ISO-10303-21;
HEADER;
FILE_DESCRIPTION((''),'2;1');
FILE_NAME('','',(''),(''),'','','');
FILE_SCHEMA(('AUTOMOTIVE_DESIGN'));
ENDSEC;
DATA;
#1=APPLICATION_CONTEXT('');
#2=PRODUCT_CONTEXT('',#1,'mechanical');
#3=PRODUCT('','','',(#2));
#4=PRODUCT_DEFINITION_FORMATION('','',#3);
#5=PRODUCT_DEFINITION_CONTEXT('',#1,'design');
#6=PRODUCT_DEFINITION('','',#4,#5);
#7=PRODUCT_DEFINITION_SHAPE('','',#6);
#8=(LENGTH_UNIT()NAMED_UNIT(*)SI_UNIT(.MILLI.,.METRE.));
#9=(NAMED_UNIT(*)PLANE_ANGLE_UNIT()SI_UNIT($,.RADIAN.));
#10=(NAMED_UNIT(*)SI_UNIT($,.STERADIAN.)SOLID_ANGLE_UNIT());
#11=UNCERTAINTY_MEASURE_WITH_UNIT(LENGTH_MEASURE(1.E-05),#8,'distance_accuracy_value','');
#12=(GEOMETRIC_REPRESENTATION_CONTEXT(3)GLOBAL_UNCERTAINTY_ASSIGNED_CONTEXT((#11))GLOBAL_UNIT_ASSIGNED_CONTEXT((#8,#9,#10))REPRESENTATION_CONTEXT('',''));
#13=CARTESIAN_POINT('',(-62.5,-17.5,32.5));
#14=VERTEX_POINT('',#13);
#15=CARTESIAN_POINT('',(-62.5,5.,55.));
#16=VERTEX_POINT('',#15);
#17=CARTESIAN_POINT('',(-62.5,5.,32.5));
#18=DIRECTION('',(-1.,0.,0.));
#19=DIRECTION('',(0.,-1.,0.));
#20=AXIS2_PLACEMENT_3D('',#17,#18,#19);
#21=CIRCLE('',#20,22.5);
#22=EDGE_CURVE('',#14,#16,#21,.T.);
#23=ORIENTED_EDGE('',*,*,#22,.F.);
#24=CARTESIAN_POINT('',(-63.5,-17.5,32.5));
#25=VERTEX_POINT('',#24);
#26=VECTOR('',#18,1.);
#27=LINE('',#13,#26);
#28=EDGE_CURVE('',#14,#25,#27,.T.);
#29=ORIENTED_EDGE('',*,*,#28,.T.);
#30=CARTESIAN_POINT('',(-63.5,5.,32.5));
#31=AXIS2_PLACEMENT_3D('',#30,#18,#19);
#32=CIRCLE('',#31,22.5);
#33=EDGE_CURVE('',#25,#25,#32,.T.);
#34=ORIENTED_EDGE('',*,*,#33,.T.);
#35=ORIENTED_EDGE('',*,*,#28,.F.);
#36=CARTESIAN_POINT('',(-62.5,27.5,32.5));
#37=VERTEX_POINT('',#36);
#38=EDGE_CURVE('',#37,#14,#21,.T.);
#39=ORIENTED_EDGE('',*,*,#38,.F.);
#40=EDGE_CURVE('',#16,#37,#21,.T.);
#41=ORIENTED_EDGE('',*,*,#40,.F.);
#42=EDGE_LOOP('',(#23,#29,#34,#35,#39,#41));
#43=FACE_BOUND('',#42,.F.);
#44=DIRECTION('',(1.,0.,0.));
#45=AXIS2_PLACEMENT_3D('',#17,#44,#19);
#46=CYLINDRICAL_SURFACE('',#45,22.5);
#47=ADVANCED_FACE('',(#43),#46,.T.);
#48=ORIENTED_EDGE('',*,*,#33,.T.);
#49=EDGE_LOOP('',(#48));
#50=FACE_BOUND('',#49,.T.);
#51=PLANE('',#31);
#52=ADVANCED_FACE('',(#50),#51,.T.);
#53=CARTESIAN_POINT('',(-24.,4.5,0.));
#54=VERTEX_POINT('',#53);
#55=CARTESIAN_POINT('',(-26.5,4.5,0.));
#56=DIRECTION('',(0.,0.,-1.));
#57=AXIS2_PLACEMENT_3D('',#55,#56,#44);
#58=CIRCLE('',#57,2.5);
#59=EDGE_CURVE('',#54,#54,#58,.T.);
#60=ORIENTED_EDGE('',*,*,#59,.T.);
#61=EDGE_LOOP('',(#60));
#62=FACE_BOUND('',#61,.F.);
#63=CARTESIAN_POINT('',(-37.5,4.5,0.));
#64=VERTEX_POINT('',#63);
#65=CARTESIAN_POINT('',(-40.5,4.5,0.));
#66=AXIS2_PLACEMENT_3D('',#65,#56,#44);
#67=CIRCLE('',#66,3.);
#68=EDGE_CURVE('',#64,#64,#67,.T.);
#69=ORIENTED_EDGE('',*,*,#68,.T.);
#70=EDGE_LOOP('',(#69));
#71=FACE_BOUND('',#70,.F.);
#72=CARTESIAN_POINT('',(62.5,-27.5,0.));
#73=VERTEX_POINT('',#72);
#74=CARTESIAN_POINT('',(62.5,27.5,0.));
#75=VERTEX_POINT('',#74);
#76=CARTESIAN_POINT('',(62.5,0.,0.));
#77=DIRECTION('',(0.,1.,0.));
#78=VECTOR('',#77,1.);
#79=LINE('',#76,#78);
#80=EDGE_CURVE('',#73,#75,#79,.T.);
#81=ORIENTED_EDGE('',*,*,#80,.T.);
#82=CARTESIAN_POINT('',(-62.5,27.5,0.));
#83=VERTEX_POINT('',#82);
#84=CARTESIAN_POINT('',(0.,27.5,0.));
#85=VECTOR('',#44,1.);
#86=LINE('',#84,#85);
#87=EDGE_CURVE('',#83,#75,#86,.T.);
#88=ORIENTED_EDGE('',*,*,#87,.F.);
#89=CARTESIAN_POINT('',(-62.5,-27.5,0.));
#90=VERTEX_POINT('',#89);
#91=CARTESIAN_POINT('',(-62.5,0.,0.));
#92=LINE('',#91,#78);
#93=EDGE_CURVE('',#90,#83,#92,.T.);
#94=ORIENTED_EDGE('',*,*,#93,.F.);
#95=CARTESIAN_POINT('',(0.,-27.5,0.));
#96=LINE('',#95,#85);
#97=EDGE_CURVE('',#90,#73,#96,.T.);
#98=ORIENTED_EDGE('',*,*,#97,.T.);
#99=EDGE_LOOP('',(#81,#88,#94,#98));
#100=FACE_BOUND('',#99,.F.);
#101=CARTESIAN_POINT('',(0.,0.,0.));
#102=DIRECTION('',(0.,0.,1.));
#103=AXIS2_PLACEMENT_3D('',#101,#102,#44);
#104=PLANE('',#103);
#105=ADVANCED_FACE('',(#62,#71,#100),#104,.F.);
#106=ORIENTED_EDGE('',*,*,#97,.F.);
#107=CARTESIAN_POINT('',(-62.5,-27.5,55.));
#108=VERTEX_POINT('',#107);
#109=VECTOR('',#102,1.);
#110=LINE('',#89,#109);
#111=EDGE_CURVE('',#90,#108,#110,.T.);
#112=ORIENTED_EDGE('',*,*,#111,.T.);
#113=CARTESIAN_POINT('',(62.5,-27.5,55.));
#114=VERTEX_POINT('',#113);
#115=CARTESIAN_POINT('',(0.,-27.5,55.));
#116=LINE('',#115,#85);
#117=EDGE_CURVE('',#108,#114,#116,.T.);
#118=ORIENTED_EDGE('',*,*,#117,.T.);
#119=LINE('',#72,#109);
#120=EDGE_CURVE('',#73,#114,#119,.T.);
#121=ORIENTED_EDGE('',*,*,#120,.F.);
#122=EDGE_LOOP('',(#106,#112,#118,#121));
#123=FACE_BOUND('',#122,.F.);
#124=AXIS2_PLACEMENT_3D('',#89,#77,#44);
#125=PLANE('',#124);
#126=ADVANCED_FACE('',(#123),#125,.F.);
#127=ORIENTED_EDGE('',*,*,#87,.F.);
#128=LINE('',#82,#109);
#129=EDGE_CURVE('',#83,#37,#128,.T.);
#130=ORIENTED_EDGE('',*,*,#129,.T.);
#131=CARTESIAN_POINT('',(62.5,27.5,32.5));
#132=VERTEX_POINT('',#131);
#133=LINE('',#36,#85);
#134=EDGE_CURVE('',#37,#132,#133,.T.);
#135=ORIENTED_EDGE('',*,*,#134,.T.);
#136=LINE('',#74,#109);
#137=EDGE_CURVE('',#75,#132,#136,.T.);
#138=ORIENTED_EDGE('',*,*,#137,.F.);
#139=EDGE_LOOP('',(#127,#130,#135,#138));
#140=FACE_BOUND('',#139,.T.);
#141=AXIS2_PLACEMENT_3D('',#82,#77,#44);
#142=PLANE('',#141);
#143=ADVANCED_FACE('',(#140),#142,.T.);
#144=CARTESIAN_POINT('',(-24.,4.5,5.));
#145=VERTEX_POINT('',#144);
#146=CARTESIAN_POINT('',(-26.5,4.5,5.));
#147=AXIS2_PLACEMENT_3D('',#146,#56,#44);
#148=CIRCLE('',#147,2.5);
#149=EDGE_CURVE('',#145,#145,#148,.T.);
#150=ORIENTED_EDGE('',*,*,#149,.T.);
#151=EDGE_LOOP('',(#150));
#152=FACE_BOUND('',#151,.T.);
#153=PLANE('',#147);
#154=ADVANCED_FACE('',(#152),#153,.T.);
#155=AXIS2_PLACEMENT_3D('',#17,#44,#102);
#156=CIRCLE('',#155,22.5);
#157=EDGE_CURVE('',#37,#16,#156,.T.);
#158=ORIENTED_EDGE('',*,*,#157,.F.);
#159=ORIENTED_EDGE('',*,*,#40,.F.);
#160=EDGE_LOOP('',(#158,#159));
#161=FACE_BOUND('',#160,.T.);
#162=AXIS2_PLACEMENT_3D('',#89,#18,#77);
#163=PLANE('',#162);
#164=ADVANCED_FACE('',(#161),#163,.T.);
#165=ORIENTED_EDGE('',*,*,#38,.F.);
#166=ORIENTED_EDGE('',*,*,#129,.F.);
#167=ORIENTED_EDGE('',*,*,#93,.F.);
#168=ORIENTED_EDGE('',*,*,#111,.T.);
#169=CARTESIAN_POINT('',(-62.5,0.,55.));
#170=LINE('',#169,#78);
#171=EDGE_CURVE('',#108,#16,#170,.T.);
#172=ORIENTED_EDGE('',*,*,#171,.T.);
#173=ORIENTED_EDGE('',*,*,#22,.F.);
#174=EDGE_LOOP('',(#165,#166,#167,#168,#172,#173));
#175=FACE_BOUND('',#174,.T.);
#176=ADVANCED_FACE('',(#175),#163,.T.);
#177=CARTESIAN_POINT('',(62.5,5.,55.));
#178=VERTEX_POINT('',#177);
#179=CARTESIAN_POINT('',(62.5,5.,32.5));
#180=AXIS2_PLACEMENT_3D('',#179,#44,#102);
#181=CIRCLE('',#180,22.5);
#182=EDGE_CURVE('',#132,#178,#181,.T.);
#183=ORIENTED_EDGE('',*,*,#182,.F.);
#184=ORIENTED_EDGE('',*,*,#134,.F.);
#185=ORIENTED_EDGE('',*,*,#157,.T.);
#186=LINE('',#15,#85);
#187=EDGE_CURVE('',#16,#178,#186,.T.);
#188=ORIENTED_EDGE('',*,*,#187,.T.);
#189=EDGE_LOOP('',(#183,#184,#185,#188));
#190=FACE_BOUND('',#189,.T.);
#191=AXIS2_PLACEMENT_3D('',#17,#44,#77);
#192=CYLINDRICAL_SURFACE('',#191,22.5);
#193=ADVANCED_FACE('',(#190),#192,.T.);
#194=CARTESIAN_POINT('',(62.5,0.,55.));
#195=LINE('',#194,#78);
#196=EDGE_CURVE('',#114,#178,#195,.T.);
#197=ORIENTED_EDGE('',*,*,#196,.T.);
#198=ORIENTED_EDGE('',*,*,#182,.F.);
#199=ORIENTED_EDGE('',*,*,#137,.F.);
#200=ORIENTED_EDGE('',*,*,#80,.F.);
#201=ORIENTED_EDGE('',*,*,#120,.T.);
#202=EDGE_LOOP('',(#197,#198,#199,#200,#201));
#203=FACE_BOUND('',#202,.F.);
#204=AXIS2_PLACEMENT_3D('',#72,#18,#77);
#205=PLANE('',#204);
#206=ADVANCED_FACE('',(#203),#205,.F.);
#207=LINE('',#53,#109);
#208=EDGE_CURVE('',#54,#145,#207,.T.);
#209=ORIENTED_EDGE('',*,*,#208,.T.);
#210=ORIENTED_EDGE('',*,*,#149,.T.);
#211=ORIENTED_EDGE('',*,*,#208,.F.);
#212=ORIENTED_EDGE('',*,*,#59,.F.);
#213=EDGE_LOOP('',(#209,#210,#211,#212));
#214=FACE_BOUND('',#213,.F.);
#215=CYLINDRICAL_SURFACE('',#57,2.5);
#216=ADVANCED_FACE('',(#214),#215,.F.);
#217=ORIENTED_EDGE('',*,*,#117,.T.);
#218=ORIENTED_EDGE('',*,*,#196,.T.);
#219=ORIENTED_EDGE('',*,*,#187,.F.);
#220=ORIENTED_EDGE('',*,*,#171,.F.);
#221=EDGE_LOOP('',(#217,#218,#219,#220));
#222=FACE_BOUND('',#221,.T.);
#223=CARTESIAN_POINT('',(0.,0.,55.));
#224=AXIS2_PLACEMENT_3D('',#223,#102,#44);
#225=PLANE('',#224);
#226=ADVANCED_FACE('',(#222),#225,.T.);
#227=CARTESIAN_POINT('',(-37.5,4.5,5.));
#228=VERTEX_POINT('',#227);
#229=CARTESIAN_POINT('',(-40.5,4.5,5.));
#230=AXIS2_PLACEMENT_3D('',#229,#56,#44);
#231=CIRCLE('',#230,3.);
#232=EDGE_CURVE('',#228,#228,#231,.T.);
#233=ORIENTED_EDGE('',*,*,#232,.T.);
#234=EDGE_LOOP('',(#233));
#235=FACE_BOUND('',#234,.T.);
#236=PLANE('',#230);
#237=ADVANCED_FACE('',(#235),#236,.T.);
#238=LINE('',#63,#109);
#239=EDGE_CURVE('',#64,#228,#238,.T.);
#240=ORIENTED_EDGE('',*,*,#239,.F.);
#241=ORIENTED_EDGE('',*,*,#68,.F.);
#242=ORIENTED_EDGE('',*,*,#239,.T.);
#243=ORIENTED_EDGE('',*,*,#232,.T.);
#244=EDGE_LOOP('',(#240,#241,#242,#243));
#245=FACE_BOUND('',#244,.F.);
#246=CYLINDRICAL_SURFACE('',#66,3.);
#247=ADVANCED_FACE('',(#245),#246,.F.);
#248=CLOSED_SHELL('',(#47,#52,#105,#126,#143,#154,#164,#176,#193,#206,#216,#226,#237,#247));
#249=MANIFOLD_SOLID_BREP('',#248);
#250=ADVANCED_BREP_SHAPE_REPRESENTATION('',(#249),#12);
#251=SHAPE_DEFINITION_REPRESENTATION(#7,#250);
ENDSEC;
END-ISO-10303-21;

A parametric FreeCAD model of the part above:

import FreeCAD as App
import Part
import Sketcher
from FreeCAD import Vector


def edges_at(feature, points):
    """Names of the edges that pass closest to the given points."""
    edges = feature.Shape.Edges
    near = lambda p: min(range(len(edges)), key=lambda i: edges[i].distToShape(Part.Vertex(*p))[0])
    return sorted({f"Edge{near(p) + 1}" for p in points})

doc = App.newDocument("Part")
body = doc.addObject("PartDesign::Body", "Body")

sketch1 = doc.addObject("Sketcher::SketchObject", "Sketch")
body.addObject(sketch1)
sketch1.AttachmentSupport = (doc.XY_Plane, [""])
sketch1.MapMode = "FlatFace"
sketch1.addGeometry([
    Part.LineSegment(Vector(-62, 28, 0), Vector(-62, -28, 0)),
    Part.LineSegment(Vector(-62, -28, 0), Vector(62, -28, 0)),
    Part.LineSegment(Vector(62, -28, 0), Vector(62, 28, 0)),
    Part.LineSegment(Vector(62, 28, 0), Vector(-62, 28, 0)),
], False)
sketch1.addConstraint([
    Sketcher.Constraint("Coincident", 0, 2, 1, 1),
    Sketcher.Constraint("Coincident", 1, 2, 2, 1),
    Sketcher.Constraint("Coincident", 2, 2, 3, 1),
    Sketcher.Constraint("Coincident", 3, 2, 0, 1),
    Sketcher.Constraint("Vertical", 0),
    Sketcher.Constraint("Horizontal", 1),
    Sketcher.Constraint("Vertical", 2),
    Sketcher.Constraint("Horizontal", 3),
    Sketcher.Constraint("Symmetric", 0, 2, 2, 2, -1, 1),
    Sketcher.Constraint("DistanceX", 1, 1, 1, 2, 125.0),
    Sketcher.Constraint("DistanceY", 0, 2, 0, 1, 55.0),
])
pad1 = doc.addObject("PartDesign::Pad", "Pad")
body.addObject(pad1)
pad1.Profile = sketch1
pad1.Length = 55

sketch2 = doc.addObject("Sketcher::SketchObject", "Sketch001")
body.addObject(sketch2)
sketch2.AttachmentSupport = (doc.XY_Plane, [""])
sketch2.MapMode = "FlatFace"
sketch2.addGeometry([
    Part.Circle(Vector(-40.5, 4.5, 0), Vector(0, 0, 1), 3),
    Part.Circle(Vector(-26.5, 4.5, 0), Vector(0, 0, 1), 2.5),
], False)
sketch2.addConstraint([
    Sketcher.Constraint("Horizontal", 0, 3, 1, 3),
    Sketcher.Constraint("Diameter", 0, 6.0),
    Sketcher.Constraint("Diameter", 1, 5.0),
    Sketcher.Constraint("DistanceX", 0, 3, 1, 3, 14.0),
    Sketcher.Constraint("DistanceX", 0, 3, -1, 1, 40.5),
    Sketcher.Constraint("DistanceY", -1, 1, 0, 3, 4.5),
])
pocket1 = doc.addObject("PartDesign::Pocket", "Pocket")
body.addObject(pocket1)
pocket1.Profile = sketch2
pocket1.Length = 5
pocket1.Reversed = True

sketch3 = doc.addObject("Sketcher::SketchObject", "Sketch002")
body.addObject(sketch3)
sketch3.AttachmentSupport = (doc.YZ_Plane, [""])
sketch3.MapMode = "FlatFace"
sketch3.AttachmentOffset = App.Placement(Vector(0, 0, -62.5), App.Rotation())
sketch3.addGeometry(Part.Circle(Vector(5, 32, 0), Vector(0, 0, 1), 22), False)
sketch3.addConstraint([
    Sketcher.Constraint("Diameter", 0, 45.0),
    Sketcher.Constraint("DistanceX", -1, 1, 0, 3, 5.0),
    Sketcher.Constraint("DistanceY", -1, 1, 0, 3, 32.5),
])
pad2 = doc.addObject("PartDesign::Pad", "Pad001")
body.addObject(pad2)
pad2.Profile = sketch3
pad2.Length = 1
pad2.Reversed = True
doc.recompute()

fillet = doc.addObject("PartDesign::Fillet", "Fillet")
body.addObject(fillet)
fillet.Base = (pad2, edges_at(pad2, [(0, 27.5, 55)]))
fillet.Radius = 22.5

doc.recompute()
